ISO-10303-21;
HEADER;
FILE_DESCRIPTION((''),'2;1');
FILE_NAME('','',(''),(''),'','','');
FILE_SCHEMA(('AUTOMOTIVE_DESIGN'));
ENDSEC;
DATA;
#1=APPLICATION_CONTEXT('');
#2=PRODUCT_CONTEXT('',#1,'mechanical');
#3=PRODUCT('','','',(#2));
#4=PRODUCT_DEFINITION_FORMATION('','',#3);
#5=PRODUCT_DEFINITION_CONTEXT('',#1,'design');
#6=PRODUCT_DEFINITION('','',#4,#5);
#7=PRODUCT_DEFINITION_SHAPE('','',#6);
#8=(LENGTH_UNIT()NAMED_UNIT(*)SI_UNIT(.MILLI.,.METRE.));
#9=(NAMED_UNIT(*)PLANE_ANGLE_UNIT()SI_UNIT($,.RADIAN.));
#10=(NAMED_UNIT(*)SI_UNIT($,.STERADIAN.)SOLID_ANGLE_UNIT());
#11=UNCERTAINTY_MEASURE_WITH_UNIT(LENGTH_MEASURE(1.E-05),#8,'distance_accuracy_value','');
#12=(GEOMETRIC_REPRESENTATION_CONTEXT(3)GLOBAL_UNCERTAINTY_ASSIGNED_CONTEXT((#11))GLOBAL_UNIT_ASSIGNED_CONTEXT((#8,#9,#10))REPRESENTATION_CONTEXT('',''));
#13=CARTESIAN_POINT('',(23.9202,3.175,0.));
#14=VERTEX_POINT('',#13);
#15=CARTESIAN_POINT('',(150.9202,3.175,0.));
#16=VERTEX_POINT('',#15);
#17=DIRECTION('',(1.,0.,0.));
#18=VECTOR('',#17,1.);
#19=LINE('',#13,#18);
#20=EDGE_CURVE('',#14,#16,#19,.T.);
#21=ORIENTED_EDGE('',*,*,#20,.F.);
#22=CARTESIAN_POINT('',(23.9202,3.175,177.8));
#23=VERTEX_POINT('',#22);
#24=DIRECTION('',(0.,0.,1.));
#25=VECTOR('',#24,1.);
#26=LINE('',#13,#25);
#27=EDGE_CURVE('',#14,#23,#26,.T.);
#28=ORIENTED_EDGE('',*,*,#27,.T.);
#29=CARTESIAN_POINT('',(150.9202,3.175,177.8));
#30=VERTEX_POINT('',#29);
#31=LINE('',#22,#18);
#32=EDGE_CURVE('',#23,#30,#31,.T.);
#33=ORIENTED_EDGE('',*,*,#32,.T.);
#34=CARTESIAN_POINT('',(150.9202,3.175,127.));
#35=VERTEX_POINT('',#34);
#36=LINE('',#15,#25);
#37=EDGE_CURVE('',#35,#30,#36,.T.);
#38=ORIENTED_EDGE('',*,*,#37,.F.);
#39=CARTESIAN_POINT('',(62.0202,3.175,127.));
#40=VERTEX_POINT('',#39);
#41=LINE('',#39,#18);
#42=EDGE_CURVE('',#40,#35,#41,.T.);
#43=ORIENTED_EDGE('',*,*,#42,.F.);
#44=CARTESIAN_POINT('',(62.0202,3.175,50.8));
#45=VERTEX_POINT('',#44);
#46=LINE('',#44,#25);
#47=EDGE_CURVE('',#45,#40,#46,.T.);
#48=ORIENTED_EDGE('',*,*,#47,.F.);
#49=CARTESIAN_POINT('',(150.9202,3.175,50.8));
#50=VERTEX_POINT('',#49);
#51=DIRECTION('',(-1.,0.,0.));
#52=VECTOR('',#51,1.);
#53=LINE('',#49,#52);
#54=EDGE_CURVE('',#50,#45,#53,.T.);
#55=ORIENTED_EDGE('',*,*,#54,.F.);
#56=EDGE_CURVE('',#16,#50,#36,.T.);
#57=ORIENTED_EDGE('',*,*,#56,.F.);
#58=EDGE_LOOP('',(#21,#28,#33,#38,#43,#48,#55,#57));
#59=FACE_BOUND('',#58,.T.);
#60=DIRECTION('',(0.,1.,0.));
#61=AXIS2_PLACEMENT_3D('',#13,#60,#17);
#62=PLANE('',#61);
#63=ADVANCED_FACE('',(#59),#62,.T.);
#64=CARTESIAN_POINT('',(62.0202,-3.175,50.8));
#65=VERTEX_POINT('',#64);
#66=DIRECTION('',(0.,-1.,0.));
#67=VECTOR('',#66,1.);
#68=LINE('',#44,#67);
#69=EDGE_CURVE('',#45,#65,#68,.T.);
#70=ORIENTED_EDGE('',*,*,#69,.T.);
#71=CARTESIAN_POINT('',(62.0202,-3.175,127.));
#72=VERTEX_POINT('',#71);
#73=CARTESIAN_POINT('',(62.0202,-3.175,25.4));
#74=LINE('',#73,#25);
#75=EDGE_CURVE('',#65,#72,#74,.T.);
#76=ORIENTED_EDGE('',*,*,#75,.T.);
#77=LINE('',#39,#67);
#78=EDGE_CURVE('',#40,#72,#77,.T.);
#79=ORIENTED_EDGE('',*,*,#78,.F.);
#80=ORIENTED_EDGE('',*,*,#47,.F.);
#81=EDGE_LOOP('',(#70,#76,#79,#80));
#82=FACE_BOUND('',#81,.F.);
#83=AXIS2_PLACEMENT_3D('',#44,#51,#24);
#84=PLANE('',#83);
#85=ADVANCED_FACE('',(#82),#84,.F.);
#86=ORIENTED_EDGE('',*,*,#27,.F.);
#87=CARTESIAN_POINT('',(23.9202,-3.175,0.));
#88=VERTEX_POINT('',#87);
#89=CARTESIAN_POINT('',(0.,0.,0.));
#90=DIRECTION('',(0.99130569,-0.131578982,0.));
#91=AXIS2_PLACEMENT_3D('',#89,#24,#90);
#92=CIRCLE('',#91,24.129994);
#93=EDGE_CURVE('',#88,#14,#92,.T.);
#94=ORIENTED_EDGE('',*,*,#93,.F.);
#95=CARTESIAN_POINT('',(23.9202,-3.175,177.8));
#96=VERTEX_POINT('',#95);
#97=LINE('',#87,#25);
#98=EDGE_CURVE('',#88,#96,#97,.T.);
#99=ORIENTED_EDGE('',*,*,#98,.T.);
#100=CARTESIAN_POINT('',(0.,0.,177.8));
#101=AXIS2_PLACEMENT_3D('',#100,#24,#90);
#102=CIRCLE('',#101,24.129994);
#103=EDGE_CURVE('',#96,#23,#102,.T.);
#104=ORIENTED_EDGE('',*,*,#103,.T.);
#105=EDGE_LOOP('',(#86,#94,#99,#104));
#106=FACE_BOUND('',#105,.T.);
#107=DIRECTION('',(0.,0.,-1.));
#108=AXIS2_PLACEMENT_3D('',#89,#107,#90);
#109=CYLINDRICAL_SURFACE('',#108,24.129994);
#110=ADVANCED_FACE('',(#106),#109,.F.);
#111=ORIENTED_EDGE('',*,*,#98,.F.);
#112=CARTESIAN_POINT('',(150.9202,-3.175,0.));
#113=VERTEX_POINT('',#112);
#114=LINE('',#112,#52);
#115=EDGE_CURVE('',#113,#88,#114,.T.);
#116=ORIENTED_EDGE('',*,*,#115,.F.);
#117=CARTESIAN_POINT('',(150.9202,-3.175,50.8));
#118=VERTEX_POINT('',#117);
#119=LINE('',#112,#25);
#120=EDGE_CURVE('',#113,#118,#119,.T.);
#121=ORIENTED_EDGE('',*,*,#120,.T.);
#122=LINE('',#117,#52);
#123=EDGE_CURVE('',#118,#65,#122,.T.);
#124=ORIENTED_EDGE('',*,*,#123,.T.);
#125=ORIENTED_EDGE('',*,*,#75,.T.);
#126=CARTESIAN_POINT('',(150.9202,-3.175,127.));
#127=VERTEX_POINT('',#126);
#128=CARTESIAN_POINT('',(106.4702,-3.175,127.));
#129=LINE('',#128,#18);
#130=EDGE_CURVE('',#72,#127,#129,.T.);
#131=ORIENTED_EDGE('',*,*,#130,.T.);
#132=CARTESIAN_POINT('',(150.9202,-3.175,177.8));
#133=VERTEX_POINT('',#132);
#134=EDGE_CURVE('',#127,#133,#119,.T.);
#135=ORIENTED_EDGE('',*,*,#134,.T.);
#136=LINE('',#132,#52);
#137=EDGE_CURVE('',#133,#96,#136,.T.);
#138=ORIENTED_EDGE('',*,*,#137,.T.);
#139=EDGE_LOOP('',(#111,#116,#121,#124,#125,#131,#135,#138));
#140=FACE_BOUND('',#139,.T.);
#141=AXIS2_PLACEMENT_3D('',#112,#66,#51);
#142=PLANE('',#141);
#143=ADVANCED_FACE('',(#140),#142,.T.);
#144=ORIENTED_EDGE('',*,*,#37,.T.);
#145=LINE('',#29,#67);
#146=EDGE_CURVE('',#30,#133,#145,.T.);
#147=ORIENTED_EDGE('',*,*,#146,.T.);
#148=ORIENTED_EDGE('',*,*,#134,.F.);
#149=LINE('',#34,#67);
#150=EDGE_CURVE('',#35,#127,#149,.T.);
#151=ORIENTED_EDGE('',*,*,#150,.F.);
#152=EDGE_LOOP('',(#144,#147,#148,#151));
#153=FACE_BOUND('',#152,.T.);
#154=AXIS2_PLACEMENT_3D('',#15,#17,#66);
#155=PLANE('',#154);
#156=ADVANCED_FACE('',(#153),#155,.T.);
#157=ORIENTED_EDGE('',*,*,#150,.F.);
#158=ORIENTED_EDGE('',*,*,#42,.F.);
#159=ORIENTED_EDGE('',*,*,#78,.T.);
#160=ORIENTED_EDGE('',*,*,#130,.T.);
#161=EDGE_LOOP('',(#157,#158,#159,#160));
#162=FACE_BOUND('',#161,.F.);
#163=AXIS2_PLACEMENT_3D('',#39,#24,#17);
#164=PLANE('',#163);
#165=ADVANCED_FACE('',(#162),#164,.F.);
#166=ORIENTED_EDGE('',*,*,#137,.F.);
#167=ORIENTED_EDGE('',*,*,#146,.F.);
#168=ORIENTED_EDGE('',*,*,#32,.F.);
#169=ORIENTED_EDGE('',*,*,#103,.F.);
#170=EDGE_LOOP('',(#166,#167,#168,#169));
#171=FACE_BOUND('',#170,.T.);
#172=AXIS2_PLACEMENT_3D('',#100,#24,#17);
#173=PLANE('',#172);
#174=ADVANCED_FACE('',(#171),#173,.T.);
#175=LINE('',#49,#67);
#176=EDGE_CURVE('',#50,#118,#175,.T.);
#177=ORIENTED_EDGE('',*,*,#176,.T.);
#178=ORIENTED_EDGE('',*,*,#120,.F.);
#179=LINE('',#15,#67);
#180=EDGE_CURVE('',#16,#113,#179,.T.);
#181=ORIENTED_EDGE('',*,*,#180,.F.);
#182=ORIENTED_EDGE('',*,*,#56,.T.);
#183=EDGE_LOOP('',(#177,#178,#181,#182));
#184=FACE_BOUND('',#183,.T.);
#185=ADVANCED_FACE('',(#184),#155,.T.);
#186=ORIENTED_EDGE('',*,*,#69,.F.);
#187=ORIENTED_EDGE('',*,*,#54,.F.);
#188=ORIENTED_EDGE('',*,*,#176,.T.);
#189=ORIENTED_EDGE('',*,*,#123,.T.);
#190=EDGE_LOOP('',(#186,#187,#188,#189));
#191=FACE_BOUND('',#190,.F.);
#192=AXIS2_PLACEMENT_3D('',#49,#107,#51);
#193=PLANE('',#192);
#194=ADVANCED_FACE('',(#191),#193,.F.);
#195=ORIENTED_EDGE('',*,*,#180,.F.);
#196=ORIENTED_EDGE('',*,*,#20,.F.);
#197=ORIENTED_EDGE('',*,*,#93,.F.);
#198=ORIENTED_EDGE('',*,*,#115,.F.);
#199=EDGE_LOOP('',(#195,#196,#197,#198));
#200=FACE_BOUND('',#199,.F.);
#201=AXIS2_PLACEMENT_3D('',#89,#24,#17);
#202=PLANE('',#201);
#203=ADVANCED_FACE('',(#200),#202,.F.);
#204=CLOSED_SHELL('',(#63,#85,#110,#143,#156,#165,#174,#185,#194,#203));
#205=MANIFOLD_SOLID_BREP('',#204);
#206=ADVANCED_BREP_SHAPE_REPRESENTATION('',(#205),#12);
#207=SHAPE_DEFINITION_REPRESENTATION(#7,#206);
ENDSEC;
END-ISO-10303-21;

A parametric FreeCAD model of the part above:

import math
import FreeCAD as App
import Part
import Sketcher
from FreeCAD import Vector
Q = App.Units.Quantity


def add_polygon(sketch, points):
    """Adds a closed chain of lines whose ends are joined by coincident constraints."""
    first, n = sketch.GeometryCount, len(points)
    for a, b in zip(points, points[1:] + points[:1]):
        sketch.addGeometry(Part.LineSegment(App.Vector(*a, 0), App.Vector(*b, 0)), False)
    for i in range(n):
        sketch.addConstraint(Sketcher.Constraint("Coincident", first + i, 2, first + (i + 1) % n, 1))

doc = App.newDocument("Part")
body = doc.addObject("PartDesign::Body", "Body")

sketch1 = body.newObject("Sketcher::SketchObject", "Sketch")
sketch1.AttachmentSupport = (doc.getObject("XY_Plane"), [""])
sketch1.MapMode = "FlatFace"
sketch1.addGeometry([
    Part.ArcOfCircle(Part.Circle(Vector(0, 0, 0), Vector(0, 0, 1), 24), math.radians(-7.56), math.radians(7.56)),
    Part.LineSegment(Vector(24, -3, 0), Vector(151, -3, 0)),
    Part.LineSegment(Vector(151, -3, 0), Vector(151, 3, 0)),
    Part.LineSegment(Vector(151, 3, 0), Vector(24, 3, 0)),
], False)
sketch1.addConstraint([
    Sketcher.Constraint("Coincident", 0, 1, 1, 1),
    Sketcher.Constraint("Coincident", 1, 2, 2, 1),
    Sketcher.Constraint("Coincident", 2, 2, 3, 1),
    Sketcher.Constraint("Coincident", 3, 2, 0, 2),
    Sketcher.Constraint("Horizontal", 1),
    Sketcher.Constraint("Vertical", 2),
    Sketcher.Constraint("Horizontal", 3),
    Sketcher.Constraint("Coincident", 0, 3, -1, 1),
    Sketcher.Constraint("Vertical", 0, 1, 3, 2),
    Sketcher.Constraint("DistanceX", 1, 1, 1, 2, Q("5 in")),
    Sketcher.Constraint("Radius", 0, Q("0.95 in")),
    Sketcher.Constraint("DistanceY", 2, 1, 2, 2, Q("0.25 in")),
])
pad1 = body.newObject("PartDesign::Pad", "Pad")
pad1.Profile = sketch1
pad1.Length = Q("7 in")

sketch2 = body.newObject("Sketcher::SketchObject", "Sketch001")
sketch2.AttachmentSupport = (doc.getObject("XZ_Plane"), [""])
sketch2.MapMode = "FlatFace"
sketch2.AttachmentOffset = App.Placement(Vector(0, 0, -0.125 * 25.4), App.Rotation())
add_polygon(sketch2, [(62, 127), (151, 127), (151, 51), (62, 51)])
sketch2.addConstraint([
    Sketcher.Constraint("Horizontal", 0),
    Sketcher.Constraint("Vertical", 1),
    Sketcher.Constraint("Horizontal", 2),
    Sketcher.Constraint("Vertical", 3),
    Sketcher.Constraint("DistanceY", 1, 2, 1, 1, Q("3 in")),
    Sketcher.Constraint("DistanceX", 0, 1, 0, 2, Q("3.5 in")),
    Sketcher.Constraint("DistanceY", -1, 1, 0, 2, Q("5 in")),
    Sketcher.Constraint("DistanceX", -1, 1, 0, 2, 150.9202),
])
pocket1 = body.newObject("PartDesign::Pocket", "Pocket")
pocket1.Profile = sketch2
pocket1.Type = "UpToFirst"
pocket1.Reversed = True

doc.recompute()
